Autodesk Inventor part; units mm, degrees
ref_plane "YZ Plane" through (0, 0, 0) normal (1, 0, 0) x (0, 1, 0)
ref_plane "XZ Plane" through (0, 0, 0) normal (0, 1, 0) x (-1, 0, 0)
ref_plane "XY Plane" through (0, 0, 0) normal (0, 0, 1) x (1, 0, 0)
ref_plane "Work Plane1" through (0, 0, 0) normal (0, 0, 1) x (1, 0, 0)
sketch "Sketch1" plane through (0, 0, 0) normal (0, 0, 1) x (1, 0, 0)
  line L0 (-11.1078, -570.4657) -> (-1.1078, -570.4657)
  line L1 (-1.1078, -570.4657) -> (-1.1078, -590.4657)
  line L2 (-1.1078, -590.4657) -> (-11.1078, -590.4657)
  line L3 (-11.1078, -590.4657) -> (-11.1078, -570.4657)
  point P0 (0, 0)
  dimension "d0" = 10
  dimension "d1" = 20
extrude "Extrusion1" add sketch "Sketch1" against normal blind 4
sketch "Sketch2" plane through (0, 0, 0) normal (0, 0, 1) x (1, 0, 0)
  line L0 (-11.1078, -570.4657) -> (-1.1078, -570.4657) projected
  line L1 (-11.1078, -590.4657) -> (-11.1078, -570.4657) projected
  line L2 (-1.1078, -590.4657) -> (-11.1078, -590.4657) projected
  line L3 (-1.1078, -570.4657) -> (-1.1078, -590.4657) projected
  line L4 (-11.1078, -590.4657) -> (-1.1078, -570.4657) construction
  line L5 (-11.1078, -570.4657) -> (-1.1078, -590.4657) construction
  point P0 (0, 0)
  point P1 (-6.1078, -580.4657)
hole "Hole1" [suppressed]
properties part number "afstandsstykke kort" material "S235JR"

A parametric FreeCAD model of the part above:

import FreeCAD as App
import Part
import Sketcher
Q = App.Units.Quantity


def add_polygon(sketch, points):
    """Adds a closed chain of lines whose ends are joined by coincident constraints."""
    first, n = sketch.GeometryCount, len(points)
    for a, b in zip(points, points[1:] + points[:1]):
        sketch.addGeometry(Part.LineSegment(App.Vector(*a, 0), App.Vector(*b, 0)), False)
    for i in range(n):
        sketch.addConstraint(Sketcher.Constraint("Coincident", first + i, 2, first + (i + 1) % n, 1))

doc = App.newDocument("Part")
body = doc.addObject("PartDesign::Body", "Body")

sketch1 = body.newObject("Sketcher::SketchObject", "Sketch")
sketch1.AttachmentSupport = (doc.getObject("XY_Plane"), [""])
sketch1.MapMode = "FlatFace"
add_polygon(sketch1, [(-1, -570), (-11, -570), (-11, -590), (-1, -590)])
sketch1.addConstraint([
    Sketcher.Constraint("Horizontal", 0),
    Sketcher.Constraint("Vertical", 1),
    Sketcher.Constraint("Horizontal", 2),
    Sketcher.Constraint("Vertical", 3),
    Sketcher.Constraint("DistanceX", 0, 2, 0, 1, Q("10 mm")),
    Sketcher.Constraint("DistanceY", 1, 2, 1, 1, Q("20 mm")),
    Sketcher.Constraint("DistanceX", 0, 2, -1, 1, Q("11.1078 mm")),
    Sketcher.Constraint("DistanceY", 0, 2, -1, 1, Q("570.4657 mm")),
])
pad1 = body.newObject("PartDesign::Pad", "Pad")
pad1.Profile = sketch1
pad1.Length = 4
pad1.Reversed = True

doc.recompute()
